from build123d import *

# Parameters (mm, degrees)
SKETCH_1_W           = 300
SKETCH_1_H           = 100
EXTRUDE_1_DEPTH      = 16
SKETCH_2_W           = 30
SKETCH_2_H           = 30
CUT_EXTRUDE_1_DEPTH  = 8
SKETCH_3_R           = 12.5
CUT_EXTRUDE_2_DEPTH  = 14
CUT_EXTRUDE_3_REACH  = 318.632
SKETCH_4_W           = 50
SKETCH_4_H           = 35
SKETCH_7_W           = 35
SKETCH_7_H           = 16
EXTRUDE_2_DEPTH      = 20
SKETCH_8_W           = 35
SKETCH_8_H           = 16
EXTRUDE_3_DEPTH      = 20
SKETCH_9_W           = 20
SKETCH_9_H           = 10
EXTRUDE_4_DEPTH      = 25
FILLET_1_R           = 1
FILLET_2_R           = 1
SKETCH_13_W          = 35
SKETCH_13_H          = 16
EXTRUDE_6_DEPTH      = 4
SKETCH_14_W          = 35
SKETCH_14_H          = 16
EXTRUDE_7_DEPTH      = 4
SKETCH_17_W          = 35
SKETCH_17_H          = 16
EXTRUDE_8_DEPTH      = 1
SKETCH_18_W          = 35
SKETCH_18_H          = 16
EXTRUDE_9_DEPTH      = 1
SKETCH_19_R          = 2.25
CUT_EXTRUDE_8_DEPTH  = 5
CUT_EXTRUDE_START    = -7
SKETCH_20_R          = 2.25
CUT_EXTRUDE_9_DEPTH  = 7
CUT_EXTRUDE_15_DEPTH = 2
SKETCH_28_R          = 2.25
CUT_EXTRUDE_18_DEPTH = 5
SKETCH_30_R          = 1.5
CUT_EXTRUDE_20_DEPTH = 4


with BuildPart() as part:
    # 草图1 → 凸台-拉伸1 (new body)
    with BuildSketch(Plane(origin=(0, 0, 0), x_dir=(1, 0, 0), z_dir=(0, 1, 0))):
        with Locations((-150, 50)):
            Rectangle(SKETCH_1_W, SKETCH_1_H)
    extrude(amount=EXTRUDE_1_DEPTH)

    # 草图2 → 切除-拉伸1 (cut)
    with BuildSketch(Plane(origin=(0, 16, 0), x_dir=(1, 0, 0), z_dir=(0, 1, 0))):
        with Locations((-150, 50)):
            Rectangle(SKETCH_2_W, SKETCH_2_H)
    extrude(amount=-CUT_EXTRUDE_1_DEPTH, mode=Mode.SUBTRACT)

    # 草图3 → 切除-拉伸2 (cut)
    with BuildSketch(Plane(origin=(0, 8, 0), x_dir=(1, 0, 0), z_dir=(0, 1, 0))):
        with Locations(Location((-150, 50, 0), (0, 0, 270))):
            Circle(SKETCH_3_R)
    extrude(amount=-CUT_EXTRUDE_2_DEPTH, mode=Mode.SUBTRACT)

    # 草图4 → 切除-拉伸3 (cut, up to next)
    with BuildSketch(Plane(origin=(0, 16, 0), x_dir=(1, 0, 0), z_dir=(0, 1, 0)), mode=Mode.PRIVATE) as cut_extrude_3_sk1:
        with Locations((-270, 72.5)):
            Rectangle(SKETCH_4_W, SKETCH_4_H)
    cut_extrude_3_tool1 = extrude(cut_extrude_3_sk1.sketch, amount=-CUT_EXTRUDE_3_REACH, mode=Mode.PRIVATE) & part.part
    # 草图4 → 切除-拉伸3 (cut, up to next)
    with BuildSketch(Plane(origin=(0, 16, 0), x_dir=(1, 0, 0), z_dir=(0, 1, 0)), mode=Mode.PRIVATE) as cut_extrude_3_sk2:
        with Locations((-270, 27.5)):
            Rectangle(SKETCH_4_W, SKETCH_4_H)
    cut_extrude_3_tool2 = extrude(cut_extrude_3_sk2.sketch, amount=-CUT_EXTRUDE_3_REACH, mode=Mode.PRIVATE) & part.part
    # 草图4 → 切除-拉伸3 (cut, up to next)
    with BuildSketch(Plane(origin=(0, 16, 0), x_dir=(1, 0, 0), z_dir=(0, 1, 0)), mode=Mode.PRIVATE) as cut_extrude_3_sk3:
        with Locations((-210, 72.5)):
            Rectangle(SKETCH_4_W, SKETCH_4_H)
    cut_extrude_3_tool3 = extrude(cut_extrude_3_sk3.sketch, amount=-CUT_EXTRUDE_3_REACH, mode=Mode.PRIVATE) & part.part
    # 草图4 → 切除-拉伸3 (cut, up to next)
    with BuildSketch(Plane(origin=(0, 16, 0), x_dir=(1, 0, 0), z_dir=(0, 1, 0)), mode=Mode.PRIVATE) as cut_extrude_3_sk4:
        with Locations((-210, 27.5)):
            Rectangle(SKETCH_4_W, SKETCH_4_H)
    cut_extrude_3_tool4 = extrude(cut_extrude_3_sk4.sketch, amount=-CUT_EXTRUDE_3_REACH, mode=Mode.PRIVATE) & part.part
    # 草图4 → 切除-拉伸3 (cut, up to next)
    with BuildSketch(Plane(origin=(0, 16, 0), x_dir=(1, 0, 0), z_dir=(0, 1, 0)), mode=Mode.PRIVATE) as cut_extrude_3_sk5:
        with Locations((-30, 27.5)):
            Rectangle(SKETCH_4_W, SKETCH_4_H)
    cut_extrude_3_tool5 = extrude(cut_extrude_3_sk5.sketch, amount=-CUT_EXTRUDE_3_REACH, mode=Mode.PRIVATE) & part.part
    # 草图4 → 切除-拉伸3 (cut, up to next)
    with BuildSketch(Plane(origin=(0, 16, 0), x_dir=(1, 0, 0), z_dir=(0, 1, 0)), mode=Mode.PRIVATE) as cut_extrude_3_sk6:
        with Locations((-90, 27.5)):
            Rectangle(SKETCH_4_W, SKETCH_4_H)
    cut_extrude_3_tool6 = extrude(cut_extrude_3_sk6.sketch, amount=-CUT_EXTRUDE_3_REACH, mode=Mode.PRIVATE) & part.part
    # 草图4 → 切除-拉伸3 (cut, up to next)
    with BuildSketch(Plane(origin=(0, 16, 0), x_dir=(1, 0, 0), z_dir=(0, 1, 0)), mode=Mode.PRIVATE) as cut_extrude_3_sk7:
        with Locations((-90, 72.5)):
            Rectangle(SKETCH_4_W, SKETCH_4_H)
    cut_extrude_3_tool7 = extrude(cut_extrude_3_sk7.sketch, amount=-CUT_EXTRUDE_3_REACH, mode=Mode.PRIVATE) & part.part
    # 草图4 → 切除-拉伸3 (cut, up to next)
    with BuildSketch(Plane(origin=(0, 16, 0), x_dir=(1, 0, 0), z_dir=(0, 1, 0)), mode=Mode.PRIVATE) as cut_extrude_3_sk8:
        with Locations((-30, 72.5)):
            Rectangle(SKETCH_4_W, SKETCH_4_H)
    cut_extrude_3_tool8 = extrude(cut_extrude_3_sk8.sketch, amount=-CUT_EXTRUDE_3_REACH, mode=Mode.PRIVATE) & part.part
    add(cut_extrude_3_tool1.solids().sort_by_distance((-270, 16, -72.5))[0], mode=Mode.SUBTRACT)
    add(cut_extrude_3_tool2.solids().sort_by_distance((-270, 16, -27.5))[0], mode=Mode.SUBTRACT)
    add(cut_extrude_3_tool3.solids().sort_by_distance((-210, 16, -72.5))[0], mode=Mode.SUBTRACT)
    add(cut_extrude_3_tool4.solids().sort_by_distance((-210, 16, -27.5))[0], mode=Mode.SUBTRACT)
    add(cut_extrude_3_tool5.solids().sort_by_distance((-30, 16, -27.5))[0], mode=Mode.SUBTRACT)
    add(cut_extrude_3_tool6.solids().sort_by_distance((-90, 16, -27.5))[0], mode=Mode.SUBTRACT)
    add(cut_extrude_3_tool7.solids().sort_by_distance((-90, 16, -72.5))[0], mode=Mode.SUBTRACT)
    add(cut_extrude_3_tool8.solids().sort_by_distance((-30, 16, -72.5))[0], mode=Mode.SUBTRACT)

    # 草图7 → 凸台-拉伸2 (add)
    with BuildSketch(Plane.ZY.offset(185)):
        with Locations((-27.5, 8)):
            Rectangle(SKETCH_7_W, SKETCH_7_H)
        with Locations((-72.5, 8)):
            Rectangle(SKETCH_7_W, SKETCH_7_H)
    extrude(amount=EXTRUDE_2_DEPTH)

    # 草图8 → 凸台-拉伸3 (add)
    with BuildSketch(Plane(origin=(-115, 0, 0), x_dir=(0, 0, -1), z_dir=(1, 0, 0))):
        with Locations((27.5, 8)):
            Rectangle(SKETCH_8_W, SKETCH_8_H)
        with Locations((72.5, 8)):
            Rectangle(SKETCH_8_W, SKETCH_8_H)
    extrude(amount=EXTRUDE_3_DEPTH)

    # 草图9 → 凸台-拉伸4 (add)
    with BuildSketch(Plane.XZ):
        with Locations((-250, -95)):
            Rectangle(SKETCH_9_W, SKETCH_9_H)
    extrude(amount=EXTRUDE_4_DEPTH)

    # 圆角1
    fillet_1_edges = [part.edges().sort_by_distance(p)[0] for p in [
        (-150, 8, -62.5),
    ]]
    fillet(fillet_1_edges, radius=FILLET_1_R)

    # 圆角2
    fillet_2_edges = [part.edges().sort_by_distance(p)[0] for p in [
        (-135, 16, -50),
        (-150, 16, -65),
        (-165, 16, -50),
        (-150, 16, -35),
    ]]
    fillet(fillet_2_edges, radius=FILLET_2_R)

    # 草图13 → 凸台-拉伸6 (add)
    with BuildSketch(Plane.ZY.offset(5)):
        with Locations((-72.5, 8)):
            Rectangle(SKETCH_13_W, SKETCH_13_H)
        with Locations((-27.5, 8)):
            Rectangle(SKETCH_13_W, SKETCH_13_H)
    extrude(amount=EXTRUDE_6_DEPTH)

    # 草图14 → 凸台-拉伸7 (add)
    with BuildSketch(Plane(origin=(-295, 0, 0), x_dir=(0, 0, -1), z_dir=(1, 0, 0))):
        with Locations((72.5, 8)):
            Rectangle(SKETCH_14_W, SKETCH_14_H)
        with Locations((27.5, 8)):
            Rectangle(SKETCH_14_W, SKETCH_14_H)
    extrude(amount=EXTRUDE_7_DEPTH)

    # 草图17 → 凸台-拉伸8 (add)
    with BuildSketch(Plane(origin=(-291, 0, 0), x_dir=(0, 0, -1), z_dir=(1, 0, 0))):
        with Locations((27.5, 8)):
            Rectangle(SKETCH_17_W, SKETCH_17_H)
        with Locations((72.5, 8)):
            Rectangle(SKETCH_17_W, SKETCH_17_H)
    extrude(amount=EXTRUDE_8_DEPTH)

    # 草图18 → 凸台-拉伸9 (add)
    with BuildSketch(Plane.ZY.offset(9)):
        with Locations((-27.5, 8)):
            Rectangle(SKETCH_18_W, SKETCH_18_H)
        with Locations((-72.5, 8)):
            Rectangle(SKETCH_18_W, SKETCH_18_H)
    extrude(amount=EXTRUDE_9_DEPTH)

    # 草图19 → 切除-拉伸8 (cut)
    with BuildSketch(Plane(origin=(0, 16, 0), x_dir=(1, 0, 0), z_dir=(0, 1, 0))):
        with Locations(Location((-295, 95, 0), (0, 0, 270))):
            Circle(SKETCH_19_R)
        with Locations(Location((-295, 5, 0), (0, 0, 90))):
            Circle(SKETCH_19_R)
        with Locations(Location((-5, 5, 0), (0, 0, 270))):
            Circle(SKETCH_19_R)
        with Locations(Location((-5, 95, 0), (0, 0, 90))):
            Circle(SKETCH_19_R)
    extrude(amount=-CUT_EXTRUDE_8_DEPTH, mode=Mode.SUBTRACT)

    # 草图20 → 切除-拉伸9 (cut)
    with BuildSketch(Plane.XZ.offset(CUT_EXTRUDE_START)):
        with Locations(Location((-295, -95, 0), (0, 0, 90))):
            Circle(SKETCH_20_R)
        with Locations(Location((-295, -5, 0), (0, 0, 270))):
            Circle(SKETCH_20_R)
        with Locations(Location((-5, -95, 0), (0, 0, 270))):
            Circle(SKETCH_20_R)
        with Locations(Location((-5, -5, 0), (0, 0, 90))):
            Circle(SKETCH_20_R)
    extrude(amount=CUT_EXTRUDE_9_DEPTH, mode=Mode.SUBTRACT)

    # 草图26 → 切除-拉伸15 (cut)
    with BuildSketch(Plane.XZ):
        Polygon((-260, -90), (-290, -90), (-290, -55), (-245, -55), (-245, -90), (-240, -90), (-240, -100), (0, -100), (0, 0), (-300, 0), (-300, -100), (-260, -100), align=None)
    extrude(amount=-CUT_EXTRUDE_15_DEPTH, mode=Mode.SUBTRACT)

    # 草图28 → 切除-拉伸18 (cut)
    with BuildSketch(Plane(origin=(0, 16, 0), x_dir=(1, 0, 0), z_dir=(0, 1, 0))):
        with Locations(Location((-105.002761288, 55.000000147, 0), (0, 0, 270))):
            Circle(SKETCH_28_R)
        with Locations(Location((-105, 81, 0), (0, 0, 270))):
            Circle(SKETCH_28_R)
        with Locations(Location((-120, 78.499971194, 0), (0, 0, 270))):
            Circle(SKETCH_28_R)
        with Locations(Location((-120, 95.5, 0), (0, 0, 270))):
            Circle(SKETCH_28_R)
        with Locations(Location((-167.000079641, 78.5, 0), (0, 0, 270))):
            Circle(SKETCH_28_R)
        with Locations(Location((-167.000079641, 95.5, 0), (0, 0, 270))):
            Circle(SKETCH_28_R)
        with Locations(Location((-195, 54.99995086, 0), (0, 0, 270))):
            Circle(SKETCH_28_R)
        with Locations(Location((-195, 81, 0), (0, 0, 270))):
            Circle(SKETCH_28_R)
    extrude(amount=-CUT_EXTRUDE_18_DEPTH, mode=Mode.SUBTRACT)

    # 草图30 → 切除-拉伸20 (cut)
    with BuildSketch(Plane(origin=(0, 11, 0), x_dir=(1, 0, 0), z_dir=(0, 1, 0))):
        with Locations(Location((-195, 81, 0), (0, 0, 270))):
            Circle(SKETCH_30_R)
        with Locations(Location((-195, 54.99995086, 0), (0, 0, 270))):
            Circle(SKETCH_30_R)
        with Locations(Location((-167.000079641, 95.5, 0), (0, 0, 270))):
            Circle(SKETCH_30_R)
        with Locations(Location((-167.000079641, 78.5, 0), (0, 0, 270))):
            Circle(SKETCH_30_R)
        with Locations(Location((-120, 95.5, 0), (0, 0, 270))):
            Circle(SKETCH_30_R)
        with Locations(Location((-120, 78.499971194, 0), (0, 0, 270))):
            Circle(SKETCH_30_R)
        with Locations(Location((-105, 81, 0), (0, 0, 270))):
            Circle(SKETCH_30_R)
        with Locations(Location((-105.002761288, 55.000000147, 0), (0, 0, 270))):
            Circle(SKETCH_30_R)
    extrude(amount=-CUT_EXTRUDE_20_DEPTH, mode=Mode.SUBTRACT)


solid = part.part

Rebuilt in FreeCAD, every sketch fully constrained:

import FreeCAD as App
import Part
import Sketcher

V = App.Vector
Q = App.Units.Quantity


def edges_at(feature, points):
    """Names of the edges that pass closest to the given points."""
    edges = feature.Shape.Edges
    near = lambda p: min(range(len(edges)), key=lambda i: edges[i].distToShape(Part.Vertex(*p))[0])
    return sorted({f"Edge{near(p) + 1}" for p in points})


def add_polygon(sketch, points):
    """Adds a closed chain of lines whose ends are joined by coincident constraints."""
    first, n = sketch.GeometryCount, len(points)
    for a, b in zip(points, points[1:] + points[:1]):
        sketch.addGeometry(Part.LineSegment(App.Vector(*a, 0), App.Vector(*b, 0)), False)
    for i in range(n):
        sketch.addConstraint(Sketcher.Constraint("Coincident", first + i, 2, first + (i + 1) % n, 1))

doc = App.newDocument("Part")
body = doc.addObject("PartDesign::Body", "Body")

# Sketch on XZ plane
sketch1 = doc.addObject("Sketcher::SketchObject", "Sketch")
body.addObject(sketch1)
sketch1.AttachmentSupport = (doc.XZ_Plane, [""])
sketch1.MapMode = "FlatFace"
add_polygon(sketch1, [(-300, -100), (-300, 0), (0, 0), (0, -100)])  # lines 0-3
sketch1.addConstraint(Sketcher.Constraint("Vertical", 0))
sketch1.addConstraint(Sketcher.Constraint("Horizontal", 1))
sketch1.addConstraint(Sketcher.Constraint("Vertical", 2))
sketch1.addConstraint(Sketcher.Constraint("Horizontal", 3))
sketch1.addConstraint(Sketcher.Constraint("Coincident", 1, 2, -1, 1))
sketch1.addConstraint(Sketcher.Constraint("DistanceX", 1, 1, 1, 2, Q("300 mm")))
sketch1.addConstraint(Sketcher.Constraint("DistanceY", 0, 1, 0, 2, Q("100 mm")))
pad1 = doc.addObject("PartDesign::Pad", "Pad")
body.addObject(pad1)
pad1.Profile = sketch1
pad1.Length = 16
pad1.Reversed = True

# Sketch on XZ plane
sketch2 = doc.addObject("Sketcher::SketchObject", "Sketch001")
body.addObject(sketch2)
sketch2.AttachmentSupport = (doc.XZ_Plane, [""])
sketch2.MapMode = "FlatFace"
sketch2.AttachmentOffset = App.Placement(V(0, 0, -16), App.Rotation())
add_polygon(sketch2, [(-165, -65), (-165, -35), (-135, -35), (-135, -65)])  # lines 0-3
sketch2.addConstraint(Sketcher.Constraint("Vertical", 0))
sketch2.addConstraint(Sketcher.Constraint("Horizontal", 1))
sketch2.addConstraint(Sketcher.Constraint("Vertical", 2))
sketch2.addConstraint(Sketcher.Constraint("Horizontal", 3))
sketch2.addConstraint(Sketcher.Constraint("Equal", 3, 0))
sketch2.addConstraint(Sketcher.Constraint("DistanceX", 1, 1, 1, 2, Q("30 mm")))
sketch2.addConstraint(Sketcher.Constraint("DistanceX", 0, 2, -1, 1, Q("165 mm")))
sketch2.addConstraint(Sketcher.Constraint("DistanceY", 0, 2, -1, 1, Q("35 mm")))
pocket1 = doc.addObject("PartDesign::Pocket", "Pocket")
body.addObject(pocket1)
pocket1.Profile = sketch2
pocket1.Length = 8
pocket1.Reversed = True

# Sketch on XZ plane
sketch3 = doc.addObject("Sketcher::SketchObject", "Sketch002")
body.addObject(sketch3)
sketch3.AttachmentSupport = (doc.XZ_Plane, [""])
sketch3.MapMode = "FlatFace"
sketch3.AttachmentOffset = App.Placement(V(0, 0, -8), App.Rotation())
sketch3.addGeometry(Part.Circle(V(-150, -50, 0), V(0, 0, 1), 12), False)
sketch3.addConstraint(Sketcher.Constraint("Diameter", 0, Q("25 mm")))
sketch3.addConstraint(Sketcher.Constraint("DistanceX", 0, 3, -1, 1, Q("150 mm")))
sketch3.addConstraint(Sketcher.Constraint("DistanceY", 0, 3, -1, 1, Q("50 mm")))
pocket2 = doc.addObject("PartDesign::Pocket", "Pocket001")
body.addObject(pocket2)
pocket2.Profile = sketch3
pocket2.Length = 14
pocket2.Reversed = True

# Sketch on XZ plane
sketch4 = doc.addObject("Sketcher::SketchObject", "Sketch003")
body.addObject(sketch4)
sketch4.AttachmentSupport = (doc.XZ_Plane, [""])
sketch4.MapMode = "FlatFace"
sketch4.AttachmentOffset = App.Placement(V(0, 0, -16), App.Rotation())
add_polygon(sketch4, [(-295, -90), (-295, -55), (-245, -55), (-245, -90)])  # lines 0-3
sketch4.addConstraint(Sketcher.Constraint("Vertical", 0))
sketch4.addConstraint(Sketcher.Constraint("Horizontal", 1))
sketch4.addConstraint(Sketcher.Constraint("Vertical", 2))
sketch4.addConstraint(Sketcher.Constraint("Horizontal", 3))
sketch4.addConstraint(Sketcher.Constraint("DistanceX", 1, 1, 1, 2, Q("50 mm")))
sketch4.addConstraint(Sketcher.Constraint("DistanceY", 0, 1, 0, 2, Q("35 mm")))
sketch4.addConstraint(Sketcher.Constraint("DistanceX", 0, 2, -1, 1, Q("295 mm")))
sketch4.addConstraint(Sketcher.Constraint("DistanceY", 0, 2, -1, 1, Q("55 mm")))
pocket3 = doc.addObject("PartDesign::Pocket", "Pocket002")
body.addObject(pocket3)
pocket3.Profile = sketch4
pocket3.Type = "UpToFirst"
pocket3.Reversed = True

# Sketch on XZ plane
sketch5 = doc.addObject("Sketcher::SketchObject", "Sketch004")
body.addObject(sketch5)
sketch5.AttachmentSupport = (doc.XZ_Plane, [""])
sketch5.MapMode = "FlatFace"
sketch5.AttachmentOffset = App.Placement(V(0, 0, -16), App.Rotation())
add_polygon(sketch5, [(-295, -45), (-295, -10), (-245, -10), (-245, -45)])  # lines 0-3
sketch5.addConstraint(Sketcher.Constraint("Vertical", 0))
sketch5.addConstraint(Sketcher.Constraint("Horizontal", 1))
sketch5.addConstraint(Sketcher.Constraint("Vertical", 2))
sketch5.addConstraint(Sketcher.Constraint("Horizontal", 3))
sketch5.addConstraint(Sketcher.Constraint("DistanceX", 1, 1, 1, 2, Q("50 mm")))
sketch5.addConstraint(Sketcher.Constraint("DistanceY", 0, 1, 0, 2, Q("35 mm")))
sketch5.addConstraint(Sketcher.Constraint("DistanceX", 0, 2, -1, 1, Q("295 mm")))
sketch5.addConstraint(Sketcher.Constraint("DistanceY", 0, 2, -1, 1, Q("10 mm")))
pocket4 = doc.addObject("PartDesign::Pocket", "Pocket003")
body.addObject(pocket4)
pocket4.Profile = sketch5
pocket4.Type = "UpToFirst"
pocket4.Reversed = True

# Sketch on XZ plane
sketch6 = doc.addObject("Sketcher::SketchObject", "Sketch005")
body.addObject(sketch6)
sketch6.AttachmentSupport = (doc.XZ_Plane, [""])
sketch6.MapMode = "FlatFace"
sketch6.AttachmentOffset = App.Placement(V(0, 0, -16), App.Rotation())
add_polygon(sketch6, [(-235, -90), (-235, -55), (-185, -55), (-185, -90)])  # lines 0-3
sketch6.addConstraint(Sketcher.Constraint("Vertical", 0))
sketch6.addConstraint(Sketcher.Constraint("Horizontal", 1))
sketch6.addConstraint(Sketcher.Constraint("Vertical", 2))
sketch6.addConstraint(Sketcher.Constraint("Horizontal", 3))
sketch6.addConstraint(Sketcher.Constraint("DistanceX", 1, 1, 1, 2, Q("50 mm")))
sketch6.addConstraint(Sketcher.Constraint("DistanceY", 0, 1, 0, 2, Q("35 mm")))
sketch6.addConstraint(Sketcher.Constraint("DistanceX", 0, 2, -1, 1, Q("235 mm")))
sketch6.addConstraint(Sketcher.Constraint("DistanceY", 0, 2, -1, 1, Q("55 mm")))
pocket5 = doc.addObject("PartDesign::Pocket", "Pocket004")
body.addObject(pocket5)
pocket5.Profile = sketch6
pocket5.Type = "UpToFirst"
pocket5.Reversed = True

# Sketch on XZ plane
sketch7 = doc.addObject("Sketcher::SketchObject", "Sketch006")
body.addObject(sketch7)
sketch7.AttachmentSupport = (doc.XZ_Plane, [""])
sketch7.MapMode = "FlatFace"
sketch7.AttachmentOffset = App.Placement(V(0, 0, -16), App.Rotation())
add_polygon(sketch7, [(-235, -45), (-235, -10), (-185, -10), (-185, -45)])  # lines 0-3
sketch7.addConstraint(Sketcher.Constraint("Vertical", 0))
sketch7.addConstraint(Sketcher.Constraint("Horizontal", 1))
sketch7.addConstraint(Sketcher.Constraint("Vertical", 2))
sketch7.addConstraint(Sketcher.Constraint("Horizontal", 3))
sketch7.addConstraint(Sketcher.Constraint("DistanceX", 1, 1, 1, 2, Q("50 mm")))
sketch7.addConstraint(Sketcher.Constraint("DistanceY", 0, 1, 0, 2, Q("35 mm")))
sketch7.addConstraint(Sketcher.Constraint("DistanceX", 0, 2, -1, 1, Q("235 mm")))
sketch7.addConstraint(Sketcher.Constraint("DistanceY", 0, 2, -1, 1, Q("10 mm")))
pocket6 = doc.addObject("PartDesign::Pocket", "Pocket005")
body.addObject(pocket6)
pocket6.Profile = sketch7
pocket6.Type = "UpToFirst"
pocket6.Reversed = True

# Sketch on XZ plane
sketch8 = doc.addObject("Sketcher::SketchObject", "Sketch007")
body.addObject(sketch8)
sketch8.AttachmentSupport = (doc.XZ_Plane, [""])
sketch8.MapMode = "FlatFace"
sketch8.AttachmentOffset = App.Placement(V(0, 0, -16), App.Rotation())
add_polygon(sketch8, [(-55, -45), (-55, -10), (-5, -10), (-5, -45)])  # lines 0-3
sketch8.addConstraint(Sketcher.Constraint("Vertical", 0))
sketch8.addConstraint(Sketcher.Constraint("Horizontal", 1))
sketch8.addConstraint(Sketcher.Constraint("Vertical", 2))
sketch8.addConstraint(Sketcher.Constraint("Horizontal", 3))
sketch8.addConstraint(Sketcher.Constraint("DistanceX", 1, 1, 1, 2, Q("50 mm")))
sketch8.addConstraint(Sketcher.Constraint("DistanceY", 0, 1, 0, 2, Q("35 mm")))
sketch8.addConstraint(Sketcher.Constraint("DistanceX", 0, 2, -1, 1, Q("55 mm")))
sketch8.addConstraint(Sketcher.Constraint("DistanceY", 0, 2, -1, 1, Q("10 mm")))
pocket7 = doc.addObject("PartDesign::Pocket", "Pocket006")
body.addObject(pocket7)
pocket7.Profile = sketch8
pocket7.Type = "UpToFirst"
pocket7.Reversed = True

# Sketch on XZ plane
sketch9 = doc.addObject("Sketcher::SketchObject", "Sketch008")
body.addObject(sketch9)
sketch9.AttachmentSupport = (doc.XZ_Plane, [""])
sketch9.MapMode = "FlatFace"
sketch9.AttachmentOffset = App.Placement(V(0, 0, -16), App.Rotation())
add_polygon(sketch9, [(-115, -45), (-115, -10), (-65, -10), (-65, -45)])  # lines 0-3
sketch9.addConstraint(Sketcher.Constraint("Vertical", 0))
sketch9.addConstraint(Sketcher.Constraint("Horizontal", 1))
sketch9.addConstraint(Sketcher.Constraint("Vertical", 2))
sketch9.addConstraint(Sketcher.Constraint("Horizontal", 3))
sketch9.addConstraint(Sketcher.Constraint("DistanceX", 1, 1, 1, 2, Q("50 mm")))
sketch9.addConstraint(Sketcher.Constraint("DistanceY", 0, 1, 0, 2, Q("35 mm")))
sketch9.addConstraint(Sketcher.Constraint("DistanceX", 0, 2, -1, 1, Q("115 mm")))
sketch9.addConstraint(Sketcher.Constraint("DistanceY", 0, 2, -1, 1, Q("10 mm")))
pocket8 = doc.addObject("PartDesign::Pocket", "Pocket007")
body.addObject(pocket8)
pocket8.Profile = sketch9
pocket8.Type = "UpToFirst"
pocket8.Reversed = True

# Sketch on XZ plane
sketch10 = doc.addObject("Sketcher::SketchObject", "Sketch009")
body.addObject(sketch10)
sketch10.AttachmentSupport = (doc.XZ_Plane, [""])
sketch10.MapMode = "FlatFace"
sketch10.AttachmentOffset = App.Placement(V(0, 0, -16), App.Rotation())
add_polygon(sketch10, [(-115, -90), (-115, -55), (-65, -55), (-65, -90)])  # lines 0-3
sketch10.addConstraint(Sketcher.Constraint("Vertical", 0))
sketch10.addConstraint(Sketcher.Constraint("Horizontal", 1))
sketch10.addConstraint(Sketcher.Constraint("Vertical", 2))
sketch10.addConstraint(Sketcher.Constraint("Horizontal", 3))
sketch10.addConstraint(Sketcher.Constraint("DistanceX", 1, 1, 1, 2, Q("50 mm")))
sketch10.addConstraint(Sketcher.Constraint("DistanceY", 0, 1, 0, 2, Q("35 mm")))
sketch10.addConstraint(Sketcher.Constraint("DistanceX", 0, 2, -1, 1, Q("115 mm")))
sketch10.addConstraint(Sketcher.Constraint("DistanceY", 0, 2, -1, 1, Q("55 mm")))
pocket9 = doc.addObject("PartDesign::Pocket", "Pocket008")
body.addObject(pocket9)
pocket9.Profile = sketch10
pocket9.Type = "UpToFirst"
pocket9.Reversed = True

# Sketch on XZ plane
sketch11 = doc.addObject("Sketcher::SketchObject", "Sketch010")
body.addObject(sketch11)
sketch11.AttachmentSupport = (doc.XZ_Plane, [""])
sketch11.MapMode = "FlatFace"
sketch11.AttachmentOffset = App.Placement(V(0, 0, -16), App.Rotation())
add_polygon(sketch11, [(-55, -90), (-55, -55), (-5, -55), (-5, -90)])  # lines 0-3
sketch11.addConstraint(Sketcher.Constraint("Vertical", 0))
sketch11.addConstraint(Sketcher.Constraint("Horizontal", 1))
sketch11.addConstraint(Sketcher.Constraint("Vertical", 2))
sketch11.addConstraint(Sketcher.Constraint("Horizontal", 3))
sketch11.addConstraint(Sketcher.Constraint("DistanceX", 1, 1, 1, 2, Q("50 mm")))
sketch11.addConstraint(Sketcher.Constraint("DistanceY", 0, 1, 0, 2, Q("35 mm")))
sketch11.addConstraint(Sketcher.Constraint("DistanceX", 0, 2, -1, 1, Q("55 mm")))
sketch11.addConstraint(Sketcher.Constraint("DistanceY", 0, 2, -1, 1, Q("55 mm")))
pocket10 = doc.addObject("PartDesign::Pocket", "Pocket009")
body.addObject(pocket10)
pocket10.Profile = sketch11
pocket10.Type = "UpToFirst"
pocket10.Reversed = True

# Sketch on YZ plane
sketch12 = doc.addObject("Sketcher::SketchObject", "Sketch011")
body.addObject(sketch12)
sketch12.AttachmentSupport = (doc.YZ_Plane, [""])
sketch12.MapMode = "FlatFace"
sketch12.AttachmentOffset = App.Placement(V(0, 0, -185), App.Rotation())
add_polygon(sketch12, [(16, -45), (0, -45), (0, -10), (16, -10)])  # lines 0-3
add_polygon(sketch12, [(16, -90), (0, -90), (0, -55), (16, -55)])  # lines 4-7
sketch12.addConstraint(Sketcher.Constraint("Horizontal", 0))
sketch12.addConstraint(Sketcher.Constraint("Vertical", 1))
sketch12.addConstraint(Sketcher.Constraint("Horizontal", 2))
sketch12.addConstraint(Sketcher.Constraint("Vertical", 3))
sketch12.addConstraint(Sketcher.Constraint("Horizontal", 4))
sketch12.addConstraint(Sketcher.Constraint("Vertical", 5))
sketch12.addConstraint(Sketcher.Constraint("Horizontal", 6))
sketch12.addConstraint(Sketcher.Constraint("Vertical", 7))
sketch12.addConstraint(Sketcher.Constraint("PointOnObject", 0, 2, -2))
sketch12.addConstraint(Sketcher.Constraint("PointOnObject", 4, 2, -2))
sketch12.addConstraint(Sketcher.Constraint("Vertical", 3, 2, 6, 2))
sketch12.addConstraint(Sketcher.Constraint("Equal", 3, 5))
sketch12.addConstraint(Sketcher.Constraint("DistanceX", 0, 2, 0, 1, Q("16 mm")))
sketch12.addConstraint(Sketcher.Constraint("DistanceY", 1, 1, 1, 2, Q("35 mm")))
sketch12.addConstraint(Sketcher.Constraint("DistanceY", 0, 2, -1, 1, Q("45 mm")))
sketch12.addConstraint(Sketcher.Constraint("DistanceY", 4, 2, -1, 1, Q("90 mm")))
pad2 = doc.addObject("PartDesign::Pad", "Pad001")
body.addObject(pad2)
pad2.Profile = sketch12
pad2.Length = 20
pad2.Reversed = True

# Sketch on YZ plane
sketch13 = doc.addObject("Sketcher::SketchObject", "Sketch012")
body.addObject(sketch13)
sketch13.AttachmentSupport = (doc.YZ_Plane, [""])
sketch13.MapMode = "FlatFace"
sketch13.AttachmentOffset = App.Placement(V(0, 0, -115), App.Rotation())
add_polygon(sketch13, [(16, -10), (0, -10), (0, -45), (16, -45)])  # lines 0-3
add_polygon(sketch13, [(16, -55), (0, -55), (0, -90), (16, -90)])  # lines 4-7
sketch13.addConstraint(Sketcher.Constraint("Horizontal", 0))
sketch13.addConstraint(Sketcher.Constraint("Vertical", 1))
sketch13.addConstraint(Sketcher.Constraint("Horizontal", 2))
sketch13.addConstraint(Sketcher.Constraint("Vertical", 3))
sketch13.addConstraint(Sketcher.Constraint("Horizontal", 4))
sketch13.addConstraint(Sketcher.Constraint("Vertical", 5))
sketch13.addConstraint(Sketcher.Constraint("Horizontal", 6))
sketch13.addConstraint(Sketcher.Constraint("Vertical", 7))
sketch13.addConstraint(Sketcher.Constraint("PointOnObject", 0, 2, -2))
sketch13.addConstraint(Sketcher.Constraint("PointOnObject", 4, 2, -2))
sketch13.addConstraint(Sketcher.Constraint("Vertical", 3, 2, 6, 2))
sketch13.addConstraint(Sketcher.Constraint("Equal", 3, 5))
sketch13.addConstraint(Sketcher.Constraint("DistanceX", 0, 2, 0, 1, Q("16 mm")))
sketch13.addConstraint(Sketcher.Constraint("DistanceY", 1, 2, 1, 1, Q("35 mm")))
sketch13.addConstraint(Sketcher.Constraint("DistanceY", 0, 2, -1, 1, Q("10 mm")))
sketch13.addConstraint(Sketcher.Constraint("DistanceY", 4, 2, -1, 1, Q("55 mm")))
pad3 = doc.addObject("PartDesign::Pad", "Pad002")
body.addObject(pad3)
pad3.Profile = sketch13
pad3.Length = 20

# Sketch on XZ plane
sketch14 = doc.addObject("Sketcher::SketchObject", "Sketch013")
body.addObject(sketch14)
sketch14.AttachmentSupport = (doc.XZ_Plane, [""])
sketch14.MapMode = "FlatFace"
add_polygon(sketch14, [(-260, -90), (-260, -100), (-240, -100), (-240, -90)])  # lines 0-3
sketch14.addConstraint(Sketcher.Constraint("Vertical", 0))
sketch14.addConstraint(Sketcher.Constraint("Horizontal", 1))
sketch14.addConstraint(Sketcher.Constraint("Vertical", 2))
sketch14.addConstraint(Sketcher.Constraint("Horizontal", 3))
sketch14.addConstraint(Sketcher.Constraint("DistanceX", 1, 1, 1, 2, Q("20 mm")))
sketch14.addConstraint(Sketcher.Constraint("DistanceY", 0, 2, 0, 1, Q("10 mm")))
sketch14.addConstraint(Sketcher.Constraint("DistanceX", 0, 2, -1, 1, Q("260 mm")))
sketch14.addConstraint(Sketcher.Constraint("DistanceY", 0, 2, -1, 1, Q("100 mm")))
pad4 = doc.addObject("PartDesign::Pad", "Pad003")
body.addObject(pad4)
pad4.Profile = sketch14
pad4.Length = 25
doc.recompute()

fillet = doc.addObject("PartDesign::Fillet", "Fillet")
body.addObject(fillet)
fillet.Base = (pad4, edges_at(pad4, [(-150, 8, -62.5)]))
fillet.Radius = 1
doc.recompute()

fillet2 = doc.addObject("PartDesign::Fillet", "Fillet001")
body.addObject(fillet2)
fillet2.Base = (fillet, edges_at(fillet, [
    (-135, 16, -50),
    (-150, 16, -65),
    (-165, 16, -50),
    (-150, 16, -35),
]))
fillet2.Radius = 1

# Sketch on YZ plane
sketch15 = doc.addObject("Sketcher::SketchObject", "Sketch014")
body.addObject(sketch15)
sketch15.AttachmentSupport = (doc.YZ_Plane, [""])
sketch15.MapMode = "FlatFace"
sketch15.AttachmentOffset = App.Placement(V(0, 0, -5), App.Rotation())
add_polygon(sketch15, [(16, -90), (0, -90), (0, -55), (16, -55)])  # lines 0-3
add_polygon(sketch15, [(16, -45), (0, -45), (0, -10), (16, -10)])  # lines 4-7
sketch15.addConstraint(Sketcher.Constraint("Horizontal", 0))
sketch15.addConstraint(Sketcher.Constraint("Vertical", 1))
sketch15.addConstraint(Sketcher.Constraint("Horizontal", 2))
sketch15.addConstraint(Sketcher.Constraint("Vertical", 3))
sketch15.addConstraint(Sketcher.Constraint("Horizontal", 4))
sketch15.addConstraint(Sketcher.Constraint("Vertical", 5))
sketch15.addConstraint(Sketcher.Constraint("Horizontal", 6))
sketch15.addConstraint(Sketcher.Constraint("Vertical", 7))
sketch15.addConstraint(Sketcher.Constraint("PointOnObject", 0, 2, -2))
sketch15.addConstraint(Sketcher.Constraint("PointOnObject", 4, 2, -2))
sketch15.addConstraint(Sketcher.Constraint("Vertical", 3, 2, 6, 2))
sketch15.addConstraint(Sketcher.Constraint("Equal", 3, 5))
sketch15.addConstraint(Sketcher.Constraint("DistanceX", 0, 2, 0, 1, Q("16 mm")))
sketch15.addConstraint(Sketcher.Constraint("DistanceY", 1, 1, 1, 2, Q("35 mm")))
sketch15.addConstraint(Sketcher.Constraint("DistanceY", 0, 2, -1, 1, Q("90 mm")))
sketch15.addConstraint(Sketcher.Constraint("DistanceY", 4, 2, -1, 1, Q("45 mm")))
pad5 = doc.addObject("PartDesign::Pad", "Pad004")
body.addObject(pad5)
pad5.Profile = sketch15
pad5.Length = 4
pad5.Reversed = True

# Sketch on YZ plane
sketch16 = doc.addObject("Sketcher::SketchObject", "Sketch015")
body.addObject(sketch16)
sketch16.AttachmentSupport = (doc.YZ_Plane, [""])
sketch16.MapMode = "FlatFace"
sketch16.AttachmentOffset = App.Placement(V(0, 0, -295), App.Rotation())
add_polygon(sketch16, [(16, -55), (0, -55), (0, -90), (16, -90)])  # lines 0-3
add_polygon(sketch16, [(16, -10), (0, -10), (0, -45), (16, -45)])  # lines 4-7
sketch16.addConstraint(Sketcher.Constraint("Horizontal", 0))
sketch16.addConstraint(Sketcher.Constraint("Vertical", 1))
sketch16.addConstraint(Sketcher.Constraint("Horizontal", 2))
sketch16.addConstraint(Sketcher.Constraint("Vertical", 3))
sketch16.addConstraint(Sketcher.Constraint("Horizontal", 4))
sketch16.addConstraint(Sketcher.Constraint("Vertical", 5))
sketch16.addConstraint(Sketcher.Constraint("Horizontal", 6))
sketch16.addConstraint(Sketcher.Constraint("Vertical", 7))
sketch16.addConstraint(Sketcher.Constraint("PointOnObject", 0, 2, -2))
sketch16.addConstraint(Sketcher.Constraint("PointOnObject", 4, 2, -2))
sketch16.addConstraint(Sketcher.Constraint("Vertical", 3, 2, 6, 2))
sketch16.addConstraint(Sketcher.Constraint("Equal", 3, 5))
sketch16.addConstraint(Sketcher.Constraint("DistanceX", 0, 2, 0, 1, Q("16 mm")))
sketch16.addConstraint(Sketcher.Constraint("DistanceY", 1, 2, 1, 1, Q("35 mm")))
sketch16.addConstraint(Sketcher.Constraint("DistanceY", 0, 2, -1, 1, Q("55 mm")))
sketch16.addConstraint(Sketcher.Constraint("DistanceY", 4, 2, -1, 1, Q("10 mm")))
pad6 = doc.addObject("PartDesign::Pad", "Pad005")
body.addObject(pad6)
pad6.Profile = sketch16
pad6.Length = 4

# Sketch on YZ plane
sketch17 = doc.addObject("Sketcher::SketchObject", "Sketch016")
body.addObject(sketch17)
sketch17.AttachmentSupport = (doc.YZ_Plane, [""])
sketch17.MapMode = "FlatFace"
sketch17.AttachmentOffset = App.Placement(V(0, 0, -291), App.Rotation())
add_polygon(sketch17, [(16, -10), (0, -10), (0, -45), (16, -45)])  # lines 0-3
add_polygon(sketch17, [(16, -55), (0, -55), (0, -90), (16, -90)])  # lines 4-7
sketch17.addConstraint(Sketcher.Constraint("Horizontal", 0))
sketch17.addConstraint(Sketcher.Constraint("Vertical", 1))
sketch17.addConstraint(Sketcher.Constraint("Horizontal", 2))
sketch17.addConstraint(Sketcher.Constraint("Vertical", 3))
sketch17.addConstraint(Sketcher.Constraint("Horizontal", 4))
sketch17.addConstraint(Sketcher.Constraint("Vertical", 5))
sketch17.addConstraint(Sketcher.Constraint("Horizontal", 6))
sketch17.addConstraint(Sketcher.Constraint("Vertical", 7))
sketch17.addConstraint(Sketcher.Constraint("PointOnObject", 0, 2, -2))
sketch17.addConstraint(Sketcher.Constraint("PointOnObject", 4, 2, -2))
sketch17.addConstraint(Sketcher.Constraint("Vertical", 3, 2, 6, 2))
sketch17.addConstraint(Sketcher.Constraint("Equal", 3, 5))
sketch17.addConstraint(Sketcher.Constraint("DistanceX", 0, 2, 0, 1, Q("16 mm")))
sketch17.addConstraint(Sketcher.Constraint("DistanceY", 1, 2, 1, 1, Q("35 mm")))
sketch17.addConstraint(Sketcher.Constraint("DistanceY", 0, 2, -1, 1, Q("10 mm")))
sketch17.addConstraint(Sketcher.Constraint("DistanceY", 4, 2, -1, 1, Q("55 mm")))
pad7 = doc.addObject("PartDesign::Pad", "Pad006")
body.addObject(pad7)
pad7.Profile = sketch17
pad7.Length = 1

# Sketch on YZ plane
sketch18 = doc.addObject("Sketcher::SketchObject", "Sketch017")
body.addObject(sketch18)
sketch18.AttachmentSupport = (doc.YZ_Plane, [""])
sketch18.MapMode = "FlatFace"
sketch18.AttachmentOffset = App.Placement(V(0, 0, -9), App.Rotation())
add_polygon(sketch18, [(16, -45), (0, -45), (0, -10), (16, -10)])  # lines 0-3
add_polygon(sketch18, [(16, -90), (0, -90), (0, -55), (16, -55)])  # lines 4-7
sketch18.addConstraint(Sketcher.Constraint("Horizontal", 0))
sketch18.addConstraint(Sketcher.Constraint("Vertical", 1))
sketch18.addConstraint(Sketcher.Constraint("Horizontal", 2))
sketch18.addConstraint(Sketcher.Constraint("Vertical", 3))
sketch18.addConstraint(Sketcher.Constraint("Horizontal", 4))
sketch18.addConstraint(Sketcher.Constraint("Vertical", 5))
sketch18.addConstraint(Sketcher.Constraint("Horizontal", 6))
sketch18.addConstraint(Sketcher.Constraint("Vertical", 7))
sketch18.addConstraint(Sketcher.Constraint("PointOnObject", 0, 2, -2))
sketch18.addConstraint(Sketcher.Constraint("PointOnObject", 4, 2, -2))
sketch18.addConstraint(Sketcher.Constraint("Vertical", 3, 2, 6, 2))
sketch18.addConstraint(Sketcher.Constraint("Equal", 3, 5))
sketch18.addConstraint(Sketcher.Constraint("DistanceX", 0, 2, 0, 1, Q("16 mm")))
sketch18.addConstraint(Sketcher.Constraint("DistanceY", 1, 1, 1, 2, Q("35 mm")))
sketch18.addConstraint(Sketcher.Constraint("DistanceY", 0, 2, -1, 1, Q("45 mm")))
sketch18.addConstraint(Sketcher.Constraint("DistanceY", 4, 2, -1, 1, Q("90 mm")))
pad8 = doc.addObject("PartDesign::Pad", "Pad007")
body.addObject(pad8)
pad8.Profile = sketch18
pad8.Length = 1
pad8.Reversed = True

# Sketch on XZ plane
sketch19 = doc.addObject("Sketcher::SketchObject", "Sketch018")
body.addObject(sketch19)
sketch19.AttachmentSupport = (doc.XZ_Plane, [""])
sketch19.MapMode = "FlatFace"
sketch19.AttachmentOffset = App.Placement(V(0, 0, -16), App.Rotation())
sketch19.addGeometry(Part.Circle(V(-295, -95, 0), V(0, 0, 1), 2.2), False)
sketch19.addGeometry(Part.Circle(V(-295, -5, 0), V(0, 0, 1), 2.2), False)
sketch19.addGeometry(Part.Circle(V(-5, -5, 0), V(0, 0, 1), 2.2), False)
sketch19.addGeometry(Part.Circle(V(-5, -95, 0), V(0, 0, 1), 2.2), False)
sketch19.addConstraint(Sketcher.Constraint("Equal", 0, 1))
sketch19.addConstraint(Sketcher.Constraint("Equal", 1, 2))
sketch19.addConstraint(Sketcher.Constraint("Equal", 2, 3))
sketch19.addConstraint(Sketcher.Constraint("Horizontal", 1, 3, 2, 3))
sketch19.addConstraint(Sketcher.Constraint("Horizontal", 0, 3, 3, 3))
sketch19.addConstraint(Sketcher.Constraint("Vertical", 0, 3, 1, 3))
sketch19.addConstraint(Sketcher.Constraint("Vertical", 2, 3, 3, 3))
sketch19.addConstraint(Sketcher.Constraint("Diameter", 0, Q("4.5 mm")))
sketch19.addConstraint(Sketcher.Constraint("DistanceX", 0, 3, -1, 1, Q("295 mm")))
sketch19.addConstraint(Sketcher.Constraint("DistanceY", 0, 3, -1, 1, Q("95 mm")))
sketch19.addConstraint(Sketcher.Constraint("DistanceY", 1, 3, -1, 1, Q("5 mm")))
sketch19.addConstraint(Sketcher.Constraint("DistanceX", 2, 3, -1, 1, Q("5 mm")))
pocket11 = doc.addObject("PartDesign::Pocket", "Pocket010")
body.addObject(pocket11)
pocket11.Profile = sketch19
pocket11.Length = 5
pocket11.Reversed = True

# Sketch on XZ plane
sketch20 = doc.addObject("Sketcher::SketchObject", "Sketch019")
body.addObject(sketch20)
sketch20.AttachmentSupport = (doc.XZ_Plane, [""])
sketch20.MapMode = "FlatFace"
sketch20.AttachmentOffset = App.Placement(V(0, 0, -7), App.Rotation())
sketch20.addGeometry(Part.Circle(V(-295, -95, 0), V(0, 0, 1), 2.2), False)
sketch20.addGeometry(Part.Circle(V(-295, -5, 0), V(0, 0, 1), 2.2), False)
sketch20.addGeometry(Part.Circle(V(-5, -95, 0), V(0, 0, 1), 2.2), False)
sketch20.addGeometry(Part.Circle(V(-5, -5, 0), V(0, 0, 1), 2.2), False)
sketch20.addConstraint(Sketcher.Constraint("Equal", 0, 1))
sketch20.addConstraint(Sketcher.Constraint("Equal", 1, 2))
sketch20.addConstraint(Sketcher.Constraint("Equal", 2, 3))
sketch20.addConstraint(Sketcher.Constraint("Horizontal", 0, 3, 2, 3))
sketch20.addConstraint(Sketcher.Constraint("Horizontal", 1, 3, 3, 3))
sketch20.addConstraint(Sketcher.Constraint("Vertical", 0, 3, 1, 3))
sketch20.addConstraint(Sketcher.Constraint("Vertical", 2, 3, 3, 3))
sketch20.addConstraint(Sketcher.Constraint("Diameter", 0, Q("4.5 mm")))
sketch20.addConstraint(Sketcher.Constraint("DistanceX", 0, 3, -1, 1, Q("295 mm")))
sketch20.addConstraint(Sketcher.Constraint("DistanceY", 0, 3, -1, 1, Q("95 mm")))
sketch20.addConstraint(Sketcher.Constraint("DistanceY", 1, 3, -1, 1, Q("5 mm")))
sketch20.addConstraint(Sketcher.Constraint("DistanceX", 2, 3, -1, 1, Q("5 mm")))
pocket12 = doc.addObject("PartDesign::Pocket", "Pocket011")
body.addObject(pocket12)
pocket12.Profile = sketch20
pocket12.Length = 7
pocket12.Reversed = True

# Sketch on XZ plane
sketch21 = doc.addObject("Sketcher::SketchObject", "Sketch020")
body.addObject(sketch21)
sketch21.AttachmentSupport = (doc.XZ_Plane, [""])
sketch21.MapMode = "FlatFace"
add_polygon(sketch21, [(-260, -90), (-290, -90), (-290, -55), (-245, -55), (-245, -90), (-240, -90), (-240, -100), (0, -100), (0, 0), (-300, 0), (-300, -100), (-260, -100)])  # lines 0-11
sketch21.addConstraint(Sketcher.Constraint("Horizontal", 0))
sketch21.addConstraint(Sketcher.Constraint("Vertical", 1))
sketch21.addConstraint(Sketcher.Constraint("Horizontal", 2))
sketch21.addConstraint(Sketcher.Constraint("Vertical", 3))
sketch21.addConstraint(Sketcher.Constraint("Horizontal", 4))
sketch21.addConstraint(Sketcher.Constraint("Vertical", 5))
sketch21.addConstraint(Sketcher.Constraint("Horizontal", 6))
sketch21.addConstraint(Sketcher.Constraint("Vertical", 7))
sketch21.addConstraint(Sketcher.Constraint("Horizontal", 8))
sketch21.addConstraint(Sketcher.Constraint("Vertical", 9))
sketch21.addConstraint(Sketcher.Constraint("Horizontal", 10))
sketch21.addConstraint(Sketcher.Constraint("Vertical", 11))
sketch21.addConstraint(Sketcher.Constraint("Coincident", 7, 2, -1, 1))
sketch21.addConstraint(Sketcher.Constraint("Horizontal", 0, 2, 3, 2))
sketch21.addConstraint(Sketcher.Constraint("Horizontal", 6, 2, 9, 2))
sketch21.addConstraint(Sketcher.Constraint("DistanceX", 0, 2, 0, 1, Q("30 mm")))
sketch21.addConstraint(Sketcher.Constraint("DistanceX", 2, 1, 2, 2, Q("45 mm")))
sketch21.addConstraint(Sketcher.Constraint("DistanceX", 4, 1, 4, 2, Q("5 mm")))
sketch21.addConstraint(Sketcher.Constraint("DistanceX", 6, 1, 6, 2, Q("240 mm")))
sketch21.addConstraint(Sketcher.Constraint("DistanceX", 8, 2, 8, 1, Q("300 mm")))
sketch21.addConstraint(Sketcher.Constraint("DistanceY", 1, 1, 1, 2, Q("35 mm")))
sketch21.addConstraint(Sketcher.Constraint("DistanceY", 5, 2, 5, 1, Q("10 mm")))
sketch21.addConstraint(Sketcher.Constraint("DistanceY", 7, 1, 7, 2, Q("100 mm")))
pocket13 = doc.addObject("PartDesign::Pocket", "Pocket012")
body.addObject(pocket13)
pocket13.Profile = sketch21
pocket13.Length = 2

# Sketch on XZ plane
sketch22 = doc.addObject("Sketcher::SketchObject", "Sketch021")
body.addObject(sketch22)
sketch22.AttachmentSupport = (doc.XZ_Plane, [""])
sketch22.MapMode = "FlatFace"
sketch22.AttachmentOffset = App.Placement(V(0, 0, -16), App.Rotation())
sketch22.addGeometry(Part.Circle(V(-105.002761, -55, 0), V(0, 0, 1), 2.25), False)
sketch22.addGeometry(Part.Circle(V(-105, -81, 0), V(0, 0, 1), 2.25), False)
sketch22.addGeometry(Part.Circle(V(-120, -78.499971, 0), V(0, 0, 1), 2.25), False)
sketch22.addGeometry(Part.Circle(V(-120, -95.5, 0), V(0, 0, 1), 2.25), False)
sketch22.addGeometry(Part.Circle(V(-167.00008, -78.5, 0), V(0, 0, 1), 2.25), False)
sketch22.addGeometry(Part.Circle(V(-167.00008, -95.5, 0), V(0, 0, 1), 2.25), False)
sketch22.addGeometry(Part.Circle(V(-195, -54.999951, 0), V(0, 0, 1), 2.25), False)
sketch22.addGeometry(Part.Circle(V(-195, -81, 0), V(0, 0, 1), 2.25), False)
sketch22.addConstraint(Sketcher.Constraint("Equal", 0, 1))
sketch22.addConstraint(Sketcher.Constraint("Equal", 1, 2))
sketch22.addConstraint(Sketcher.Constraint("Equal", 2, 3))
sketch22.addConstraint(Sketcher.Constraint("Equal", 3, 4))
sketch22.addConstraint(Sketcher.Constraint("Equal", 4, 5))
sketch22.addConstraint(Sketcher.Constraint("Equal", 5, 6))
sketch22.addConstraint(Sketcher.Constraint("Equal", 6, 7))
sketch22.addConstraint(Sketcher.Constraint("Horizontal", 3, 3, 5, 3))
sketch22.addConstraint(Sketcher.Constraint("Horizontal", 1, 3, 7, 3))
sketch22.addConstraint(Sketcher.Constraint("Vertical", 2, 3, 3, 3))
sketch22.addConstraint(Sketcher.Constraint("Vertical", 4, 3, 5, 3))
sketch22.addConstraint(Sketcher.Constraint("Vertical", 6, 3, 7, 3))
sketch22.addConstraint(Sketcher.Constraint("Diameter", 0, Q("4.5 mm")))
sketch22.addConstraint(Sketcher.Constraint("DistanceY", 0, 3, -1, 1, Q("55 mm")))
sketch22.addConstraint(Sketcher.Constraint("DistanceX", 1, 3, -1, 1, Q("105 mm")))
sketch22.addConstraint(Sketcher.Constraint("DistanceY", 1, 3, -1, 1, Q("81 mm")))
sketch22.addConstraint(Sketcher.Constraint("DistanceX", 2, 3, -1, 1, Q("120 mm")))
sketch22.addConstraint(Sketcher.Constraint("DistanceX", 6, 3, -1, 1, Q("195 mm")))
sketch22.addConstraint(Sketcher.Constraint("DistanceY", 3, 3, 4, 3, Q("17 mm")))
sketch22.addConstraint(Sketcher.Constraint("DistanceY", 3, 3, -1, 1, Q("95.5 mm")))
sketch22.addConstraint(Sketcher.Constraint("DistanceX", 0, 3, -1, 1, Q("105.002761 mm")))
sketch22.addConstraint(Sketcher.Constraint("DistanceY", 2, 3, -1, 1, Q("78.499971 mm")))
sketch22.addConstraint(Sketcher.Constraint("DistanceX", 4, 3, -1, 1, Q("167.00008 mm")))
sketch22.addConstraint(Sketcher.Constraint("DistanceY", 6, 3, -1, 1, Q("54.999951 mm")))
pocket14 = doc.addObject("PartDesign::Pocket", "Pocket013")
body.addObject(pocket14)
pocket14.Profile = sketch22
pocket14.Length = 5
pocket14.Reversed = True

# Sketch on XZ plane
sketch23 = doc.addObject("Sketcher::SketchObject", "Sketch022")
body.addObject(sketch23)
sketch23.AttachmentSupport = (doc.XZ_Plane, [""])
sketch23.MapMode = "FlatFace"
sketch23.AttachmentOffset = App.Placement(V(0, 0, -11), App.Rotation())
sketch23.addGeometry(Part.Circle(V(-195, -81, 0), V(0, 0, 1), 1.5), False)
sketch23.addGeometry(Part.Circle(V(-195, -55, 0), V(0, 0, 1), 1.5), False)
sketch23.addGeometry(Part.Circle(V(-167, -95.5, 0), V(0, 0, 1), 1.5), False)
sketch23.addGeometry(Part.Circle(V(-167, -78.5, 0), V(0, 0, 1), 1.5), False)
sketch23.addGeometry(Part.Circle(V(-120, -95.5, 0), V(0, 0, 1), 1.5), False)
sketch23.addGeometry(Part.Circle(V(-120, -78.5, 0), V(0, 0, 1), 1.5), False)
sketch23.addGeometry(Part.Circle(V(-105, -81, 0), V(0, 0, 1), 1.5), False)
sketch23.addGeometry(Part.Circle(V(-105, -55, 0), V(0, 0, 1), 1.5), False)
sketch23.addConstraint(Sketcher.Constraint("Equal", 0, 1))
sketch23.addConstraint(Sketcher.Constraint("Equal", 1, 2))
sketch23.addConstraint(Sketcher.Constraint("Equal", 2, 3))
sketch23.addConstraint(Sketcher.Constraint("Equal", 3, 4))
sketch23.addConstraint(Sketcher.Constraint("Equal", 4, 5))
sketch23.addConstraint(Sketcher.Constraint("Equal", 5, 6))
sketch23.addConstraint(Sketcher.Constraint("Equal", 6, 7))
sketch23.addConstraint(Sketcher.Constraint("Horizontal", 2, 3, 4, 3))
sketch23.addConstraint(Sketcher.Constraint("Horizontal", 0, 3, 6, 3))
sketch23.addConstraint(Sketcher.Constraint("Vertical", 0, 3, 1, 3))
sketch23.addConstraint(Sketcher.Constraint("Vertical", 2, 3, 3, 3))
sketch23.addConstraint(Sketcher.Constraint("Vertical", 4, 3, 5, 3))
sketch23.addConstraint(Sketcher.Constraint("Diameter", 0, Q("3 mm")))
sketch23.addConstraint(Sketcher.Constraint("DistanceX", 0, 3, -1, 1, Q("195 mm")))
sketch23.addConstraint(Sketcher.Constraint("DistanceY", 0, 3, -1, 1, Q("81 mm")))
sketch23.addConstraint(Sketcher.Constraint("DistanceX", 4, 3, -1, 1, Q("120 mm")))
sketch23.addConstraint(Sketcher.Constraint("DistanceX", 6, 3, -1, 1, Q("105 mm")))
sketch23.addConstraint(Sketcher.Constraint("DistanceY", 7, 3, -1, 1, Q("55 mm")))
sketch23.addConstraint(Sketcher.Constraint("DistanceY", 2, 3, 3, 3, Q("17 mm")))
sketch23.addConstraint(Sketcher.Constraint("DistanceY", 2, 3, -1, 1, Q("95.5 mm")))
sketch23.addConstraint(Sketcher.Constraint("DistanceY", 1, 3, -1, 1, Q("54.999951 mm")))
sketch23.addConstraint(Sketcher.Constraint("DistanceX", 2, 3, -1, 1, Q("167.00008 mm")))
sketch23.addConstraint(Sketcher.Constraint("DistanceY", 5, 3, -1, 1, Q("78.499971 mm")))
sketch23.addConstraint(Sketcher.Constraint("DistanceX", 7, 3, -1, 1, Q("105.002761 mm")))
pocket15 = doc.addObject("PartDesign::Pocket", "Pocket014")
body.addObject(pocket15)
pocket15.Profile = sketch23
pocket15.Length = 4
pocket15.Reversed = True

doc.recompute()
